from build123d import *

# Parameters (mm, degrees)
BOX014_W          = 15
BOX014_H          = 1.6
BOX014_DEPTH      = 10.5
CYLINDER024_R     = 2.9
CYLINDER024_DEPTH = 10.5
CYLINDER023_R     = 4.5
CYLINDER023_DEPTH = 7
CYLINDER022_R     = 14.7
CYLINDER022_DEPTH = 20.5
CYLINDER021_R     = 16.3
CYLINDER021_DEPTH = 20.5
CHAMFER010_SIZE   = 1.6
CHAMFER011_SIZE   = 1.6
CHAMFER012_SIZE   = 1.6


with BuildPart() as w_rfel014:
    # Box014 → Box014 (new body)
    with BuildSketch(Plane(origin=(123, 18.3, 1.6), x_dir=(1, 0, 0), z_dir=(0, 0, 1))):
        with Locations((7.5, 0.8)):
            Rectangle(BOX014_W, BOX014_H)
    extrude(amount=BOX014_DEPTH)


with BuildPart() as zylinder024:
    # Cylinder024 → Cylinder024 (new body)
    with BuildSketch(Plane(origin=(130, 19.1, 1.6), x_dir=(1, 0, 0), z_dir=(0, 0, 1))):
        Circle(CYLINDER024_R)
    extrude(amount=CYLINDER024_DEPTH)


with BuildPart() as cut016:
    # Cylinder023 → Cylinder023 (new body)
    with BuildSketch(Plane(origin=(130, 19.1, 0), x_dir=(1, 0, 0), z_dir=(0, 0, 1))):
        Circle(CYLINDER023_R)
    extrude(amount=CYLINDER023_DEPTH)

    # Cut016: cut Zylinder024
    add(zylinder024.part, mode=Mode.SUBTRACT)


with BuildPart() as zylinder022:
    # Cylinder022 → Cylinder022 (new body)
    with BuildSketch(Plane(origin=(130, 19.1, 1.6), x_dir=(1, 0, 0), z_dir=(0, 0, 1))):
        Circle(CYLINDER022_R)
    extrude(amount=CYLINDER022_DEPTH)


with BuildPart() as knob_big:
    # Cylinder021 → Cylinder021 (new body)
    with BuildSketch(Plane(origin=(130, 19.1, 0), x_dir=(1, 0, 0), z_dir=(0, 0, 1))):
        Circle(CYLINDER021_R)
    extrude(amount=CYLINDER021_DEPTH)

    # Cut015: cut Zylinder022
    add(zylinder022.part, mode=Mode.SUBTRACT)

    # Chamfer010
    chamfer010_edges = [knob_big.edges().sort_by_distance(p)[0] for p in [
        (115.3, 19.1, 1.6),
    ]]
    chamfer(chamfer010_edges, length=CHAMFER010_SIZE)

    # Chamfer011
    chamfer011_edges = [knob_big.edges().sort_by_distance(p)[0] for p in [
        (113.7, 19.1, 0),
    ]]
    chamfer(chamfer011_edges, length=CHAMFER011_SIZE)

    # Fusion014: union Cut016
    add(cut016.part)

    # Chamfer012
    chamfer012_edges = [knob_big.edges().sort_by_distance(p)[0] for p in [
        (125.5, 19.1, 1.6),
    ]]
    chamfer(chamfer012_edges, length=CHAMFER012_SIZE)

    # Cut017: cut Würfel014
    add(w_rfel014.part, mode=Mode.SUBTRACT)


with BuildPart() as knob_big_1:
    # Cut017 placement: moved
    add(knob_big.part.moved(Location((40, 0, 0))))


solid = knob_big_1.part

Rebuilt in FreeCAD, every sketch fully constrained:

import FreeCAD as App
import Part
import Sketcher
Q = App.Units.Quantity


def edges_at(feature, points):
    """Names of the edges that pass closest to the given points."""
    edges = feature.Shape.Edges
    near = lambda p: min(range(len(edges)), key=lambda i: edges[i].distToShape(Part.Vertex(*p))[0])
    return sorted({f"Edge{near(p) + 1}" for p in points})

doc = App.newDocument("Part")
params = doc.addObject("Spreadsheet::Sheet", "Params")
for row, (alias, value) in enumerate([
    ("sketch1_width", "15 mm"),
    ("sketch1_height", "1.6 mm"),
    ("pad1_length", "10.5 mm"),
    ("sketch2_diameter", "5.8 mm"),
    ("pad2_length", "10.5 mm"),
    ("sketch3_diameter", "9 mm"),
    ("pad3_length", "7 mm"),
    ("sketch4_diameter", "29.4 mm"),
    ("pad4_length", "20.5 mm"),
    ("sketch5_diameter", "32.6 mm"),
    ("pad5_length", "20.5 mm"),
    ("chamfer_size", "1.6 mm"),
    ("chamfer2_size", "1.6 mm"),
    ("chamfer3_size", "1.6 mm"),
], start=1):
    params.set(f"A{row}", alias)
    params.set(f"B{row}", "=" + value)
    params.setAlias(f"B{row}", alias)

body = doc.addObject("PartDesign::Body", "Body")

# Sketch on XY plane
sketch1 = body.newObject("Sketcher::SketchObject", "Sketch")
sketch1.AttachmentSupport = (doc.getObject("XY_Plane"), [""])
sketch1.MapMode = "FlatFace"
sketch1.AttachmentOffset = App.Placement(App.Vector(0, 0, 1.6), App.Rotation())
sketch1.addGeometry([
    Part.LineSegment(App.Vector(123, 19.9, 0), App.Vector(123, 18.3, 0)),
    Part.LineSegment(App.Vector(123, 18.3, 0), App.Vector(138, 18.3, 0)),
    Part.LineSegment(App.Vector(138, 18.3, 0), App.Vector(138, 19.9, 0)),
    Part.LineSegment(App.Vector(138, 19.9, 0), App.Vector(123, 19.9, 0)),
], False)
sketch1.addConstraint([
    Sketcher.Constraint("Coincident", 0, 2, 1, 1),
    Sketcher.Constraint("Coincident", 1, 2, 2, 1),
    Sketcher.Constraint("Coincident", 2, 2, 3, 1),
    Sketcher.Constraint("Coincident", 3, 2, 0, 1),
    Sketcher.Constraint("Vertical", 0),
    Sketcher.Constraint("Horizontal", 1),
    Sketcher.Constraint("Vertical", 2),
    Sketcher.Constraint("Horizontal", 3),
    Sketcher.Constraint("DistanceX", 1, 1, 1, 2, Q("15 mm")),
    Sketcher.Constraint("DistanceY", 0, 2, 0, 1, Q("1.6 mm")),
    Sketcher.Constraint("DistanceX", -1, 1, 0, 2, Q("123 mm")),
    Sketcher.Constraint("DistanceY", -1, 1, 0, 2, Q("18.3 mm")),
])
sketch1.setExpression("Constraints[8]", "Params.sketch1_width")
sketch1.setExpression("Constraints[9]", "Params.sketch1_height")
pad1 = body.newObject("PartDesign::Pad", "Pad")
pad1.Profile = sketch1
pad1.setExpression("Length", "Params.pad1_length")
body2 = doc.addObject("PartDesign::Body", "Body001")

# Sketch on XY plane
sketch2 = body2.newObject("Sketcher::SketchObject", "Sketch001")
sketch2.AttachmentSupport = (doc.getObject("XY_Plane001"), [""])
sketch2.MapMode = "FlatFace"
sketch2.AttachmentOffset = App.Placement(App.Vector(0, 0, 1.6), App.Rotation())
sketch2.addGeometry(Part.Circle(App.Vector(130, 19.1, 0), App.Vector(0, 0, 1), 2.9), False)
sketch2.addConstraint([
    Sketcher.Constraint("Diameter", 0, Q("5.8 mm")),
    Sketcher.Constraint("DistanceX", -1, 1, 0, 3, Q("130 mm")),
    Sketcher.Constraint("DistanceY", -1, 1, 0, 3, Q("19.1 mm")),
])
sketch2.setExpression("Constraints[0]", "Params.sketch2_diameter")
pad2 = body2.newObject("PartDesign::Pad", "Pad001")
pad2.Profile = sketch2
pad2.setExpression("Length", "Params.pad2_length")
body3 = doc.addObject("PartDesign::Body", "Body002")

# Sketch on XY plane
sketch3 = body3.newObject("Sketcher::SketchObject", "Sketch002")
sketch3.AttachmentSupport = (doc.getObject("XY_Plane002"), [""])
sketch3.MapMode = "FlatFace"
sketch3.addGeometry(Part.Circle(App.Vector(130, 19.1, 0), App.Vector(0, 0, 1), 4.5), False)
sketch3.addConstraint([
    Sketcher.Constraint("Diameter", 0, Q("9 mm")),
    Sketcher.Constraint("DistanceX", -1, 1, 0, 3, Q("130 mm")),
    Sketcher.Constraint("DistanceY", -1, 1, 0, 3, Q("19.1 mm")),
])
sketch3.setExpression("Constraints[0]", "Params.sketch3_diameter")
pad3 = body3.newObject("PartDesign::Pad", "Pad002")
pad3.Profile = sketch3
pad3.setExpression("Length", "Params.pad3_length")
doc.recompute()

boolean = body3.newObject("PartDesign::Boolean", "Boolean")
boolean.Type = "Cut"
boolean.addObjects([body2])
body4 = doc.addObject("PartDesign::Body", "Body003")

# Sketch on XY plane
sketch4 = body4.newObject("Sketcher::SketchObject", "Sketch003")
sketch4.AttachmentSupport = (doc.getObject("XY_Plane003"), [""])
sketch4.MapMode = "FlatFace"
sketch4.AttachmentOffset = App.Placement(App.Vector(0, 0, 1.6), App.Rotation())
sketch4.addGeometry(Part.Circle(App.Vector(130, 19, 0), App.Vector(0, 0, 1), 15), False)
sketch4.addConstraint([
    Sketcher.Constraint("Diameter", 0, Q("29.4 mm")),
    Sketcher.Constraint("DistanceX", -1, 1, 0, 3, Q("130 mm")),
    Sketcher.Constraint("DistanceY", -1, 1, 0, 3, Q("19.1 mm")),
])
sketch4.setExpression("Constraints[0]", "Params.sketch4_diameter")
pad4 = body4.newObject("PartDesign::Pad", "Pad003")
pad4.Profile = sketch4
pad4.setExpression("Length", "Params.pad4_length")
body5 = doc.addObject("PartDesign::Body", "Body004")

# Sketch on XY plane
sketch5 = body5.newObject("Sketcher::SketchObject", "Sketch004")
sketch5.AttachmentSupport = (doc.getObject("XY_Plane004"), [""])
sketch5.MapMode = "FlatFace"
sketch5.addGeometry(Part.Circle(App.Vector(130, 19, 0), App.Vector(0, 0, 1), 16), False)
sketch5.addConstraint([
    Sketcher.Constraint("Diameter", 0, Q("32.6 mm")),
    Sketcher.Constraint("DistanceX", -1, 1, 0, 3, Q("130 mm")),
    Sketcher.Constraint("DistanceY", -1, 1, 0, 3, Q("19.1 mm")),
])
sketch5.setExpression("Constraints[0]", "Params.sketch5_diameter")
pad5 = body5.newObject("PartDesign::Pad", "Pad004")
pad5.Profile = sketch5
pad5.setExpression("Length", "Params.pad5_length")
doc.recompute()

boolean2 = body5.newObject("PartDesign::Boolean", "Boolean001")
boolean2.Type = "Cut"
boolean2.addObjects([body4])
doc.recompute()

chamfer = body5.newObject("PartDesign::Chamfer", "Chamfer")
chamfer.Base = (boolean2, edges_at(boolean2, [(115.3, 19.1, 1.6)]))
chamfer.setExpression("Size", "Params.chamfer_size")
doc.recompute()

chamfer2 = body5.newObject("PartDesign::Chamfer", "Chamfer001")
chamfer2.Base = (chamfer, edges_at(chamfer, [(113.7, 19.1, 0)]))
chamfer2.setExpression("Size", "Params.chamfer2_size")
doc.recompute()

boolean3 = body5.newObject("PartDesign::Boolean", "Boolean002")
boolean3.Type = "Fuse"
boolean3.addObjects([body3])
doc.recompute()

chamfer3 = body5.newObject("PartDesign::Chamfer", "Chamfer002")
chamfer3.Base = (boolean3, edges_at(boolean3, [(125.5, 19.1, 1.6)]))
chamfer3.setExpression("Size", "Params.chamfer3_size")
doc.recompute()

boolean4 = body5.newObject("PartDesign::Boolean", "Boolean003")
boolean4.Type = "Cut"
boolean4.addObjects([body])
body6 = doc.addObject("PartDesign::Body", "Body005")
doc.recompute()

body5.Placement = App.Placement(App.Vector(40, 0, 0), App.Rotation(App.Vector(0, 0, 1), 0))
boolean5 = body6.newObject("PartDesign::Boolean", "Boolean004")
boolean5.Type = "Fuse"
boolean5.addObjects([body5])

doc.recompute()
